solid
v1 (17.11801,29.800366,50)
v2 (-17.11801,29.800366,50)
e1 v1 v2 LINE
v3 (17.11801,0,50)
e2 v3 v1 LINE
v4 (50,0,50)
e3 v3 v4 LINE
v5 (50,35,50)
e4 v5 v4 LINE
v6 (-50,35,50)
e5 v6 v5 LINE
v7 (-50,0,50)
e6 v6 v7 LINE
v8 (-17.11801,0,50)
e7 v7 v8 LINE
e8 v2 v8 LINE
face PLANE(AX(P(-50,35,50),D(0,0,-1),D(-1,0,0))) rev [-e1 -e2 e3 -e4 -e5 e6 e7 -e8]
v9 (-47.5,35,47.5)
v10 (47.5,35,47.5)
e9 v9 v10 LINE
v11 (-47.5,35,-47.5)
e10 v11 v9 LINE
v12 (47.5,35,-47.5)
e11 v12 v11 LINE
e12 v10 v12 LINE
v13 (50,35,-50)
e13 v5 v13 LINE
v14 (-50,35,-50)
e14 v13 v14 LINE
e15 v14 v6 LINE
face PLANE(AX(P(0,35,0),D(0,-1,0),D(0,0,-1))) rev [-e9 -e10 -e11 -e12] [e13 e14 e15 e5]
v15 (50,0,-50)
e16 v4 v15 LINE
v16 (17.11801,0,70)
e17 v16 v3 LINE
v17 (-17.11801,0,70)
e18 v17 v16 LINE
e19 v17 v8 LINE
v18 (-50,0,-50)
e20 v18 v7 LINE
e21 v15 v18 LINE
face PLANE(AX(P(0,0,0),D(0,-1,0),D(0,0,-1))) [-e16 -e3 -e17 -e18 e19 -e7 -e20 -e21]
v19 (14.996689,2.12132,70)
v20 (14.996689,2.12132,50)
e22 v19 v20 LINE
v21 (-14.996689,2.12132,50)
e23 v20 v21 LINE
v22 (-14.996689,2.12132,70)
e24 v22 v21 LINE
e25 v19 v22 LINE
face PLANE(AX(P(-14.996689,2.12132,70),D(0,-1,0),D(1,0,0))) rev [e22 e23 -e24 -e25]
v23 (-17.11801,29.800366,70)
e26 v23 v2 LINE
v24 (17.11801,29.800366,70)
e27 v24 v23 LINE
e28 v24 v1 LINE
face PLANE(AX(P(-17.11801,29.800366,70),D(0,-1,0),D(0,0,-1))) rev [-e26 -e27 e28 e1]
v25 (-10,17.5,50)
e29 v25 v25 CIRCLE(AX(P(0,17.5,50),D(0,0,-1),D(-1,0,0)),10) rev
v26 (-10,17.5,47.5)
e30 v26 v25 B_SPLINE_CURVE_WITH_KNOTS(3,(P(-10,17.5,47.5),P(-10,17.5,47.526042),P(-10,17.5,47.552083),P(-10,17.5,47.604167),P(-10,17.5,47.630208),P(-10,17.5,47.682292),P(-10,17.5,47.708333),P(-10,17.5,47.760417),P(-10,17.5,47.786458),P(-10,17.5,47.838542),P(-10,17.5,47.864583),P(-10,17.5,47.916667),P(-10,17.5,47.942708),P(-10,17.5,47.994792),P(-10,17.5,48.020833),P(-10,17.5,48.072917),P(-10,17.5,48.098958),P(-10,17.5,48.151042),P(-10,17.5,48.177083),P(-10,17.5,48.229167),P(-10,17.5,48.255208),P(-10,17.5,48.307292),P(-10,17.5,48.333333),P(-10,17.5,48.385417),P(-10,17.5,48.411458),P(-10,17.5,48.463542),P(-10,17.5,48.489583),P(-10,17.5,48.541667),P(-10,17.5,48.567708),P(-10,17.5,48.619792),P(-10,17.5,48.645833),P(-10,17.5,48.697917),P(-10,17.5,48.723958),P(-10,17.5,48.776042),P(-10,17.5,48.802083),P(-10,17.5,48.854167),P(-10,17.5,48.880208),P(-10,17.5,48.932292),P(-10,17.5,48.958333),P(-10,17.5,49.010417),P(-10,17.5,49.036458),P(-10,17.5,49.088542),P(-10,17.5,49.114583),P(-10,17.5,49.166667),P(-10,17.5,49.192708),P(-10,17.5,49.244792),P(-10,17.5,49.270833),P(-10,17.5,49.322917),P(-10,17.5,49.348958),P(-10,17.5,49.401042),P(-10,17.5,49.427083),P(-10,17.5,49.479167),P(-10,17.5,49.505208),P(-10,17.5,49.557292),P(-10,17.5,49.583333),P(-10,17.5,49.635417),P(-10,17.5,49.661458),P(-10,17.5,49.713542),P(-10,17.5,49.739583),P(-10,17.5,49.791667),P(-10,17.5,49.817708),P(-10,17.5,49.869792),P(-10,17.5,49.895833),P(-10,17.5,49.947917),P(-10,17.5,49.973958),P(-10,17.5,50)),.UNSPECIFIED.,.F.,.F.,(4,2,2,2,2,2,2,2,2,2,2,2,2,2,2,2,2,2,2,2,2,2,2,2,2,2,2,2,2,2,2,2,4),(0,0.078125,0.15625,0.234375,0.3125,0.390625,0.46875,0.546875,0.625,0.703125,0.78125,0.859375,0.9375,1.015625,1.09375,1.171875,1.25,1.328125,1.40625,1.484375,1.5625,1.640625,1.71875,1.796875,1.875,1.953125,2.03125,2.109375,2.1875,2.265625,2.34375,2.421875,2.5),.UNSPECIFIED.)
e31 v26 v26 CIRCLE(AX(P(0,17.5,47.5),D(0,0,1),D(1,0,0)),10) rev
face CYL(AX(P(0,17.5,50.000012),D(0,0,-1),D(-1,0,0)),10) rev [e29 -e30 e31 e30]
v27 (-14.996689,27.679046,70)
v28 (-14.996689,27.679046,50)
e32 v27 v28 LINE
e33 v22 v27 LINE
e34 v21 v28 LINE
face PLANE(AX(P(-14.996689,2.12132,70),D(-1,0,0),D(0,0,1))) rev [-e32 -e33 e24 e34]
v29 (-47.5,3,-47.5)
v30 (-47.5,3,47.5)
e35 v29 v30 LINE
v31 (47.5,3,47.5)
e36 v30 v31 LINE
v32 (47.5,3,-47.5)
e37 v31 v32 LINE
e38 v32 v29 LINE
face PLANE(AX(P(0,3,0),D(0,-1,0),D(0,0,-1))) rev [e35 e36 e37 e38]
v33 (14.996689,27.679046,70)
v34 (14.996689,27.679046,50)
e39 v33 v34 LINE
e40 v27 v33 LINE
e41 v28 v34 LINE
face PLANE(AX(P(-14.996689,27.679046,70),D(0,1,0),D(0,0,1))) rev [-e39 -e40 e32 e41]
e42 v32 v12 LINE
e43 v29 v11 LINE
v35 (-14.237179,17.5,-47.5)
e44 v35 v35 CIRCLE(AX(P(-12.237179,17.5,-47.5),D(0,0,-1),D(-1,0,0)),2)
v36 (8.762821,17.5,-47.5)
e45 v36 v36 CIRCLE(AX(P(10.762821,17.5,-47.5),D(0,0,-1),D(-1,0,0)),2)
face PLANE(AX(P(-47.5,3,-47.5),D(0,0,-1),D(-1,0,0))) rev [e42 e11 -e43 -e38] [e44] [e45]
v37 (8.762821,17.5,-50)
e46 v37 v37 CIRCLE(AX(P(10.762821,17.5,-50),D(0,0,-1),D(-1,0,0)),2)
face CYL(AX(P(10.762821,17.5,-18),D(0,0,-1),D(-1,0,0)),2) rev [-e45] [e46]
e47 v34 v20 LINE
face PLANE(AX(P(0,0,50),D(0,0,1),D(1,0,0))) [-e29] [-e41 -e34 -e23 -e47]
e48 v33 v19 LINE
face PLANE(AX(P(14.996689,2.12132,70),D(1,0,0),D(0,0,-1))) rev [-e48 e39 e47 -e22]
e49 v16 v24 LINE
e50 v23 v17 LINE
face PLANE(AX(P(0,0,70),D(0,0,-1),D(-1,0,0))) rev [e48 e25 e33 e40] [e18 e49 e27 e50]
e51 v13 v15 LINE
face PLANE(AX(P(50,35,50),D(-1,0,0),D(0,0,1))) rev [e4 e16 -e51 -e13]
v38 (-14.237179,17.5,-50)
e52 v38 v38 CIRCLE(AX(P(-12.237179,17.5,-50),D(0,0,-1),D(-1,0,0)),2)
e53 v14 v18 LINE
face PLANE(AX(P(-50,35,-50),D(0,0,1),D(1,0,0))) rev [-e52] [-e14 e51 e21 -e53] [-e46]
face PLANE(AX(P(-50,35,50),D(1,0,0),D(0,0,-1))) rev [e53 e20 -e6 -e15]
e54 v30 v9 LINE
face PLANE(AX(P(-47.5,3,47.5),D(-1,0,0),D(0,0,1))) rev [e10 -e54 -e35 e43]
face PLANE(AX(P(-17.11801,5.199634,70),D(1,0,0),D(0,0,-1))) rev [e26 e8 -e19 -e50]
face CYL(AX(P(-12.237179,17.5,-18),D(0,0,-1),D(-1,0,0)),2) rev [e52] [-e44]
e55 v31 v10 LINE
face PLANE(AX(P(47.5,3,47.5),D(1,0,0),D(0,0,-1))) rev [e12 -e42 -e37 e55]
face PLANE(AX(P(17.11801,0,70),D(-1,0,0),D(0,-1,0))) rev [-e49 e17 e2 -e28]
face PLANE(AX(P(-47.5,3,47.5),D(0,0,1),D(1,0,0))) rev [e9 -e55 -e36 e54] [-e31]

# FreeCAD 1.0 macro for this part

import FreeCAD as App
import Part
import Sketcher
from FreeCAD import Vector

doc = App.newDocument("Part")
params = doc.addObject("Spreadsheet::Sheet", "Params")
for row, (alias, value) in enumerate([
    ("sketch1_width", "100 mm"),
    ("pad1_length", "35 mm"),
    ("sketch2_width", "95 mm"),
    ("pocket1_length", "32 mm"),
    ("sketch3_diameter", "20 mm"),
    ("pocket2_length", "118.153745 mm"),
    ("pocket2_length2", "32 mm"),
    ("sketch4_diameter", "4 mm"),
    ("pocket3_length", "32 mm"),
    ("pad2_length", "20 mm"),
], start=1):
    params.set(f"A{row}", alias)
    params.set(f"B{row}", "=" + value)
    params.setAlias(f"B{row}", alias)

body = doc.addObject("PartDesign::Body", "Body")

# Sketch on XZ plane
sketch1 = doc.addObject("Sketcher::SketchObject", "Sketch")
body.addObject(sketch1)
sketch1.AttachmentSupport = (doc.XZ_Plane, [""])
sketch1.MapMode = "FlatFace"
sketch1.addGeometry([
    Part.LineSegment(Vector(-50, -50, 0), Vector(-50, 50, 0)),
    Part.LineSegment(Vector(-50, 50, 0), Vector(50, 50, 0)),
    Part.LineSegment(Vector(50, 50, 0), Vector(50, -50, 0)),
    Part.LineSegment(Vector(50, -50, 0), Vector(-50, -50, 0)),
], False)
sketch1.addConstraint([
    Sketcher.Constraint("Coincident", 0, 2, 1, 1),
    Sketcher.Constraint("Coincident", 1, 2, 2, 1),
    Sketcher.Constraint("Coincident", 2, 2, 3, 1),
    Sketcher.Constraint("Coincident", 3, 2, 0, 1),
    Sketcher.Constraint("Vertical", 0),
    Sketcher.Constraint("Horizontal", 1),
    Sketcher.Constraint("Vertical", 2),
    Sketcher.Constraint("Horizontal", 3),
    Sketcher.Constraint("Symmetric", 0, 2, 2, 2, -1, 1),
    Sketcher.Constraint("Equal", 3, 0),
    Sketcher.Constraint("DistanceX", 1, 1, 1, 2, 100.0),
])
sketch1.setExpression("Constraints[10]", "Params.sketch1_width")
pad1 = doc.addObject("PartDesign::Pad", "Pad")
body.addObject(pad1)
pad1.Profile = sketch1
pad1.setExpression("Length", "Params.pad1_length")
pad1.Reversed = True

# Sketch on XZ plane
sketch2 = doc.addObject("Sketcher::SketchObject", "Sketch001")
body.addObject(sketch2)
sketch2.AttachmentSupport = (doc.XZ_Plane, [""])
sketch2.MapMode = "FlatFace"
sketch2.AttachmentOffset = App.Placement(Vector(0, 0, -35), App.Rotation())
sketch2.addGeometry([
    Part.LineSegment(Vector(-48, -48, 0), Vector(-48, 48, 0)),
    Part.LineSegment(Vector(-48, 48, 0), Vector(48, 48, 0)),
    Part.LineSegment(Vector(48, 48, 0), Vector(48, -48, 0)),
    Part.LineSegment(Vector(48, -48, 0), Vector(-48, -48, 0)),
], False)
sketch2.addConstraint([
    Sketcher.Constraint("Coincident", 0, 2, 1, 1),
    Sketcher.Constraint("Coincident", 1, 2, 2, 1),
    Sketcher.Constraint("Coincident", 2, 2, 3, 1),
    Sketcher.Constraint("Coincident", 3, 2, 0, 1),
    Sketcher.Constraint("Vertical", 0),
    Sketcher.Constraint("Horizontal", 1),
    Sketcher.Constraint("Vertical", 2),
    Sketcher.Constraint("Horizontal", 3),
    Sketcher.Constraint("Symmetric", 0, 2, 2, 2, -1, 1),
    Sketcher.Constraint("Equal", 3, 0),
    Sketcher.Constraint("DistanceX", 1, 1, 1, 2, 95.0),
])
sketch2.setExpression("Constraints[10]", "Params.sketch2_width")
pocket1 = doc.addObject("PartDesign::Pocket", "Pocket")
body.addObject(pocket1)
pocket1.Profile = sketch2
pocket1.setExpression("Length", "Params.pocket1_length")
pocket1.Reversed = True

# Sketch on XY plane
sketch3 = doc.addObject("Sketcher::SketchObject", "Sketch002")
body.addObject(sketch3)
sketch3.AttachmentSupport = (doc.XY_Plane, [""])
sketch3.MapMode = "FlatFace"
sketch3.AttachmentOffset = App.Placement(Vector(0, 0, 50), App.Rotation())
sketch3.addGeometry(Part.Circle(Vector(0, 18, 0), Vector(0, 0, 1), 10), False)
sketch3.addConstraint([
    Sketcher.Constraint("PointOnObject", 0, 3, -2),
    Sketcher.Constraint("Diameter", 0, 20.0),
    Sketcher.Constraint("DistanceY", -1, 1, 0, 3, 17.5),
])
sketch3.setExpression("Constraints[1]", "Params.sketch3_diameter")
pocket2 = doc.addObject("PartDesign::Pocket", "Pocket001")
body.addObject(pocket2)
pocket2.Profile = sketch3
pocket2.Type = "TwoLengths"
pocket2.setExpression("Length", "Params.pocket2_length")
pocket2.setExpression("Length2", "Params.pocket2_length2")
pocket2.Reversed = True

# Sketch on XY plane
sketch4 = doc.addObject("Sketcher::SketchObject", "Sketch003")
body.addObject(sketch4)
sketch4.AttachmentSupport = (doc.XY_Plane, [""])
sketch4.MapMode = "FlatFace"
sketch4.AttachmentOffset = App.Placement(Vector(0, 0, -50), App.Rotation())
sketch4.addGeometry([
    Part.Circle(Vector(10.8, 17.5, 0), Vector(0, 0, 1), 2),
    Part.Circle(Vector(-12.2, 17.5, 0), Vector(0, 0, 1), 2),
], False)
sketch4.addConstraint([
    Sketcher.Constraint("Equal", 0, 1),
    Sketcher.Constraint("Horizontal", 0, 3, 1, 3),
    Sketcher.Constraint("Diameter", 0, 4.0),
    Sketcher.Constraint("DistanceX", 1, 3, 0, 3, 23.0),
    Sketcher.Constraint("DistanceY", -1, 1, 0, 3, 17.5),
    Sketcher.Constraint("DistanceX", -1, 1, 0, 3, 10.762821),
])
sketch4.setExpression("Constraints[2]", "Params.sketch4_diameter")
pocket3 = doc.addObject("PartDesign::Pocket", "Pocket002")
body.addObject(pocket3)
pocket3.Profile = sketch4
pocket3.setExpression("Length", "Params.pocket3_length")
pocket3.Reversed = True

# Sketch on XY plane
sketch5 = doc.addObject("Sketcher::SketchObject", "Sketch004")
body.addObject(sketch5)
sketch5.AttachmentSupport = (doc.XY_Plane, [""])
sketch5.MapMode = "FlatFace"
sketch5.AttachmentOffset = App.Placement(Vector(0, 0, 50), App.Rotation())
sketch5.addGeometry([
    Part.LineSegment(Vector(-17, 0, 0), Vector(17, 0, 0)),
    Part.LineSegment(Vector(17, 0, 0), Vector(17, 30, 0)),
    Part.LineSegment(Vector(17, 30, 0), Vector(-17, 30, 0)),
    Part.LineSegment(Vector(-17, 30, 0), Vector(-17, 0, 0)),
], False)
sketch5.addConstraint([
    Sketcher.Constraint("Coincident", 0, 2, 1, 1),
    Sketcher.Constraint("Coincident", 1, 2, 2, 1),
    Sketcher.Constraint("Coincident", 2, 2, 3, 1),
    Sketcher.Constraint("Coincident", 3, 2, 0, 1),
    Sketcher.Constraint("Horizontal", 0),
    Sketcher.Constraint("Vertical", 1),
    Sketcher.Constraint("Horizontal", 2),
    Sketcher.Constraint("Vertical", 3),
    Sketcher.Constraint("Symmetric", 0, 2, 3, 2, -1, 1),
    Sketcher.Constraint("DistanceX", 0, 1, 0, 2, 34.23602),
    Sketcher.Constraint("DistanceY", 1, 1, 1, 2, 29.800366),
])
pad2 = doc.addObject("PartDesign::Pad", "Pad001")
body.addObject(pad2)
pad2.Profile = sketch5
pad2.setExpression("Length", "Params.pad2_length")

# Sketch on XY plane
sketch6 = doc.addObject("Sketcher::SketchObject", "Sketch005")
body.addObject(sketch6)
sketch6.AttachmentSupport = (doc.XY_Plane, [""])
sketch6.MapMode = "FlatFace"
sketch6.AttachmentOffset = App.Placement(Vector(0, 0, 50), App.Rotation())
sketch6.addGeometry([
    Part.LineSegment(Vector(15, 28, 0), Vector(15, 2, 0)),
    Part.LineSegment(Vector(15, 2, 0), Vector(-15, 2, 0)),
    Part.LineSegment(Vector(-15, 2, 0), Vector(-15, 28, 0)),
    Part.LineSegment(Vector(-15, 28, 0), Vector(15, 28, 0)),
], False)
sketch6.addConstraint([
    Sketcher.Constraint("Coincident", 0, 2, 1, 1),
    Sketcher.Constraint("Coincident", 1, 2, 2, 1),
    Sketcher.Constraint("Coincident", 2, 2, 3, 1),
    Sketcher.Constraint("Coincident", 3, 2, 0, 1),
    Sketcher.Constraint("Vertical", 0),
    Sketcher.Constraint("Horizontal", 1),
    Sketcher.Constraint("Vertical", 2),
    Sketcher.Constraint("Horizontal", 3),
    Sketcher.Constraint("DistanceX", 1, 2, 1, 1, 29.993379),
    Sketcher.Constraint("DistanceY", 0, 2, 0, 1, 25.557726),
    Sketcher.Constraint("DistanceX", -1, 1, 0, 2, 14.996689),
    Sketcher.Constraint("DistanceY", -1, 1, 0, 2, 2.12132),
])
pocket4 = doc.addObject("PartDesign::Pocket", "Pocket003")
body.addObject(pocket4)
pocket4.Profile = sketch6
pocket4.Type = "ThroughAll"
pocket4.Reversed = True

doc.recompute()
